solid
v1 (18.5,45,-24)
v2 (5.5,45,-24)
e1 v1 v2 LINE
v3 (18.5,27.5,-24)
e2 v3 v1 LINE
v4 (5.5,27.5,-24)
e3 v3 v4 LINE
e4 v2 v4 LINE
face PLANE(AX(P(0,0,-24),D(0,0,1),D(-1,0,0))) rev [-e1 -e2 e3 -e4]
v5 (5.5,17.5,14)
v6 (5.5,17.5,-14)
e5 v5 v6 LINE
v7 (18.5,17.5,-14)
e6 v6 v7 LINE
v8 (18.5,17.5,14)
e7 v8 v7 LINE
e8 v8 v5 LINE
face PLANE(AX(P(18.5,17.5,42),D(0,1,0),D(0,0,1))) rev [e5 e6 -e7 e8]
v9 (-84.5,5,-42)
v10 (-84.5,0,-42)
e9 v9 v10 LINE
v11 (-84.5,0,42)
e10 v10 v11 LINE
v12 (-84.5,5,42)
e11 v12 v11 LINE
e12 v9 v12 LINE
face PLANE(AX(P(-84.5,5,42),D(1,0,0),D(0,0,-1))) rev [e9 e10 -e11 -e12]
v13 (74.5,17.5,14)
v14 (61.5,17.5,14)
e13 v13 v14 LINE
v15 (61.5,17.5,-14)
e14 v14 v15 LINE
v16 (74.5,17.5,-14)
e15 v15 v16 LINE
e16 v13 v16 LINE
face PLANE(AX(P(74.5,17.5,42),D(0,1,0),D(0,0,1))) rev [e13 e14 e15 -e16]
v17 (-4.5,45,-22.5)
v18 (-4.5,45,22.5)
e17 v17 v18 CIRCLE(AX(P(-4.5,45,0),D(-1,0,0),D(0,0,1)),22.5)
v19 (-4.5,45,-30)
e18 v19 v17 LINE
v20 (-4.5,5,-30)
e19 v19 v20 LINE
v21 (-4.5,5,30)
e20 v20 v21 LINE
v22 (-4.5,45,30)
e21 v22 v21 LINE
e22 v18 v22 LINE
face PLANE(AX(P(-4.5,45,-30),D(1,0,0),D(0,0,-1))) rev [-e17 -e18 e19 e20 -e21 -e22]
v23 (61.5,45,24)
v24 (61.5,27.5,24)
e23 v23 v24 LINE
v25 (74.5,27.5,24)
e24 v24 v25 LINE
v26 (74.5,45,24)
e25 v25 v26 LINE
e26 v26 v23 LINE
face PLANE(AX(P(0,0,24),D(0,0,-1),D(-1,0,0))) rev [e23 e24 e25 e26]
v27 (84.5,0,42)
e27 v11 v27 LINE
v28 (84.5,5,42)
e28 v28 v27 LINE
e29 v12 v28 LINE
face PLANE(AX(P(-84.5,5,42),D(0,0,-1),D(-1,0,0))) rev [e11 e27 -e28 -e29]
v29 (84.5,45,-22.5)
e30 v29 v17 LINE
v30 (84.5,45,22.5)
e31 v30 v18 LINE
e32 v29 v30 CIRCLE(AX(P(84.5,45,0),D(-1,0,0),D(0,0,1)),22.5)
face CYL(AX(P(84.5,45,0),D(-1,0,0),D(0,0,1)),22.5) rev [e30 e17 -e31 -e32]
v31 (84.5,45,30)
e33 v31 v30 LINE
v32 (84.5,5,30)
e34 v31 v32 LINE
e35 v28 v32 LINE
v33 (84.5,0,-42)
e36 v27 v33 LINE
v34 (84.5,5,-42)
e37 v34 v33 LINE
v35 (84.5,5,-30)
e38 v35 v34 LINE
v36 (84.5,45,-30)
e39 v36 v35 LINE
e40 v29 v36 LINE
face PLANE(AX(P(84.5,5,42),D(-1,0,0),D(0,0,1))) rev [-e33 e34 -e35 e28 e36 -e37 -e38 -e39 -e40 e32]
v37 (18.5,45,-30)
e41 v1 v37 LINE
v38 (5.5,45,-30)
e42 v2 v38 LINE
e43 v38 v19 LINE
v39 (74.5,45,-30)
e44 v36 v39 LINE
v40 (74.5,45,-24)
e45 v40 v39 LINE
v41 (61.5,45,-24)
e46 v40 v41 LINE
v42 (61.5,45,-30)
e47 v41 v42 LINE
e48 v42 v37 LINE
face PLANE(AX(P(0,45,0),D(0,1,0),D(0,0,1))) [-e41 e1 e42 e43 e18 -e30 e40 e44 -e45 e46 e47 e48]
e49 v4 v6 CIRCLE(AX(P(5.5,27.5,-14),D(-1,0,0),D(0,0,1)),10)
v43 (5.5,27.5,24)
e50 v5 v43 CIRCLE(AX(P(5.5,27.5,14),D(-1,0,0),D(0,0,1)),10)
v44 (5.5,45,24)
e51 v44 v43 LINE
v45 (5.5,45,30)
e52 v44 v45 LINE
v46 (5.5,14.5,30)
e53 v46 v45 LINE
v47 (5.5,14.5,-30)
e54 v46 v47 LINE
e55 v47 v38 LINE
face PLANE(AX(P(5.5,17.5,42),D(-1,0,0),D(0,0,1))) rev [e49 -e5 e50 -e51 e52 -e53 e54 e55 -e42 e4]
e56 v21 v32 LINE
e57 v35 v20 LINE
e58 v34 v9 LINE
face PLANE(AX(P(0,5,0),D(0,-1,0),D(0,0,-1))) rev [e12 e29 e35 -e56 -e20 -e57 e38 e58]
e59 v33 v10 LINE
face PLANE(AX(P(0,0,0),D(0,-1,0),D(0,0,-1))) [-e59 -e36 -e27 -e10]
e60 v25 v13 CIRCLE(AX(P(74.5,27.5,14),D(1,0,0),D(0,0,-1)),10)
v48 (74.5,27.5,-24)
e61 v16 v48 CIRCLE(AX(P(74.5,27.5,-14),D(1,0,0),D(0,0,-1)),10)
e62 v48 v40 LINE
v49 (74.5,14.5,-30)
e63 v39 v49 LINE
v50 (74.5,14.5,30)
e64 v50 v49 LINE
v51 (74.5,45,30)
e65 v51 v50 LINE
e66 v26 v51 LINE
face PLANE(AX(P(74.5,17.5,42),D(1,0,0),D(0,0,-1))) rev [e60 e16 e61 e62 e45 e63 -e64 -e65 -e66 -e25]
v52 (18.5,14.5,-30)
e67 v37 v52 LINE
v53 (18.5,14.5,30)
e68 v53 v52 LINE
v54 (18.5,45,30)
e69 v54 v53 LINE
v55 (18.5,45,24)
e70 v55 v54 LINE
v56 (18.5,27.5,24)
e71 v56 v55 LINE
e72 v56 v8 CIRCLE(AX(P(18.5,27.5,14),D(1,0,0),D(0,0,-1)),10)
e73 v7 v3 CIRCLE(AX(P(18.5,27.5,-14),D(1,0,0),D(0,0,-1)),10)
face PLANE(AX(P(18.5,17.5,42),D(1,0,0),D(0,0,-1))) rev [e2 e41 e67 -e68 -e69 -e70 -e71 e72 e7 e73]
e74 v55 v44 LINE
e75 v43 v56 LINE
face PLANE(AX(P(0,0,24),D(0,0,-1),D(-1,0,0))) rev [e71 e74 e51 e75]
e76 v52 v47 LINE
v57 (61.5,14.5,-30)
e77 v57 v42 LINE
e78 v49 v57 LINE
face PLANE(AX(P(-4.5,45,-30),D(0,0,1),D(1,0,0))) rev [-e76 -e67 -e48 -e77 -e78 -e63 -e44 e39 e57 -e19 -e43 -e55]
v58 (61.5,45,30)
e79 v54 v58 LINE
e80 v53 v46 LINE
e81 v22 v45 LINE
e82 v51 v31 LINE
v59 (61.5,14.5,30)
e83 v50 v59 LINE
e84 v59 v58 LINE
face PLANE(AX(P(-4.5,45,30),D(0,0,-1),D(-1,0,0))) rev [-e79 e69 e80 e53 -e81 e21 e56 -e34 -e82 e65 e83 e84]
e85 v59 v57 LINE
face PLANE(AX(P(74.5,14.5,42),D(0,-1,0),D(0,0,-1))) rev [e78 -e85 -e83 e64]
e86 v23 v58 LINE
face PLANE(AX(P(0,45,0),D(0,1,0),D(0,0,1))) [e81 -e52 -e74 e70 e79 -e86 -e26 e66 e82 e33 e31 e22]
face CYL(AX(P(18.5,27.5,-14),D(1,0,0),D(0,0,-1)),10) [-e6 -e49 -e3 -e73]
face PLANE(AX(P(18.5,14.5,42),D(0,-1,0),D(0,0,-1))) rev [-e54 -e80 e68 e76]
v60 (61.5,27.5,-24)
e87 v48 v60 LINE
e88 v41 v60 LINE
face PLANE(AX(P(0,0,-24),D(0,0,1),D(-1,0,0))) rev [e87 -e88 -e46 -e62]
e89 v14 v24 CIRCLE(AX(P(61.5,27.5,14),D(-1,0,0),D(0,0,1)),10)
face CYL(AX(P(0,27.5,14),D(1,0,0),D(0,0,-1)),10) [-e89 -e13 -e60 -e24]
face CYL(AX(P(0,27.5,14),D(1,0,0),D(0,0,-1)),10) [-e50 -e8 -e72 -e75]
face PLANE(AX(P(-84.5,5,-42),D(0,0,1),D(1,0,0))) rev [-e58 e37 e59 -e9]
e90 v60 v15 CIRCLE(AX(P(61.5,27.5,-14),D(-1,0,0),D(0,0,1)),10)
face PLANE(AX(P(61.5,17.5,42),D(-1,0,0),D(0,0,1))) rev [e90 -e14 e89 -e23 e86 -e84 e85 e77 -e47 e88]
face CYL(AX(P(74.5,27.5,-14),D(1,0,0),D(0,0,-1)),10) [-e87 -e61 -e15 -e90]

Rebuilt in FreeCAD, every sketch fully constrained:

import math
import FreeCAD as App
import Part
import Sketcher

V = App.Vector
Q = App.Units.Quantity


def edges_at(feature, points):
    """Names of the edges that pass closest to the given points."""
    edges = feature.Shape.Edges
    near = lambda p: min(range(len(edges)), key=lambda i: edges[i].distToShape(Part.Vertex(*p))[0])
    return sorted({f"Edge{near(p) + 1}" for p in points})

doc = App.newDocument("Part")
body = doc.addObject("PartDesign::Body", "Body")

# Sketch on XZ plane
sketch1 = doc.addObject("Sketcher::SketchObject", "Sketch")
body.addObject(sketch1)
sketch1.AttachmentSupport = (doc.XZ_Plane, [""])
sketch1.MapMode = "FlatFace"
sketch1.addGeometry([
    Part.LineSegment(V(-84, -42, 0), V(-84, 42, 0)),
    Part.LineSegment(V(-84, 42, 0), V(84, 42, 0)),
    Part.LineSegment(V(84, 42, 0), V(84, -42, 0)),
    Part.LineSegment(V(84, -42, 0), V(-84, -42, 0)),
], False)
sketch1.addConstraint([
    Sketcher.Constraint("Coincident", 0, 2, 1, 1),
    Sketcher.Constraint("Coincident", 1, 2, 2, 1),
    Sketcher.Constraint("Coincident", 2, 2, 3, 1),
    Sketcher.Constraint("Coincident", 3, 2, 0, 1),
    Sketcher.Constraint("Vertical", 0),
    Sketcher.Constraint("Horizontal", 1),
    Sketcher.Constraint("Vertical", 2),
    Sketcher.Constraint("Horizontal", 3),
    Sketcher.Constraint("Symmetric", 0, 2, 2, 2, -1, 1),
    Sketcher.Constraint("DistanceX", 1, 1, 1, 2, Q("169 mm")),
    Sketcher.Constraint("DistanceY", 0, 1, 0, 2, Q("84 mm")),
])
pad1 = doc.addObject("PartDesign::Pad", "Pad")
body.addObject(pad1)
pad1.Profile = sketch1
pad1.Length = 5
pad1.Reversed = True

# Sketch on XZ plane
sketch2 = doc.addObject("Sketcher::SketchObject", "Sketch001")
body.addObject(sketch2)
sketch2.AttachmentSupport = (doc.XZ_Plane, [""])
sketch2.MapMode = "FlatFace"
sketch2.AttachmentOffset = App.Placement(V(0, 0, -5), App.Rotation())
sketch2.addGeometry([
    Part.LineSegment(V(-4, -30, 0), V(-4, 30, 0)),
    Part.LineSegment(V(-4, 30, 0), V(84, 30, 0)),
    Part.LineSegment(V(84, 30, 0), V(84, -30, 0)),
    Part.LineSegment(V(84, -30, 0), V(-4, -30, 0)),
], False)
sketch2.addConstraint([
    Sketcher.Constraint("Coincident", 0, 2, 1, 1),
    Sketcher.Constraint("Coincident", 1, 2, 2, 1),
    Sketcher.Constraint("Coincident", 2, 2, 3, 1),
    Sketcher.Constraint("Coincident", 3, 2, 0, 1),
    Sketcher.Constraint("Vertical", 0),
    Sketcher.Constraint("Horizontal", 1),
    Sketcher.Constraint("Vertical", 2),
    Sketcher.Constraint("Horizontal", 3),
    Sketcher.Constraint("DistanceX", 1, 1, 1, 2, Q("89 mm")),
    Sketcher.Constraint("DistanceY", 0, 1, 0, 2, Q("60 mm")),
    Sketcher.Constraint("DistanceY", -1, 1, 0, 2, Q("30 mm")),
    Sketcher.Constraint("DistanceX", 0, 2, -1, 1, Q("4.5 mm")),
])
pad2 = doc.addObject("PartDesign::Pad", "Pad001")
body.addObject(pad2)
pad2.Profile = sketch2
pad2.Length = 40
pad2.Reversed = True

# Sketch on YZ plane
sketch3 = doc.addObject("Sketcher::SketchObject", "Sketch002")
body.addObject(sketch3)
sketch3.AttachmentSupport = (doc.YZ_Plane, [""])
sketch3.MapMode = "FlatFace"
sketch3.AttachmentOffset = App.Placement(V(0, 0, -4.5), App.Rotation())
sketch3.addGeometry([
    Part.LineSegment(V(45, 22, 0), V(45, -22, 0)),
    Part.ArcOfCircle(Part.Circle(V(45, 0, 0), V(0, 0, 1), 22), math.radians(90), math.radians(270)),
], False)
sketch3.addConstraint([
    Sketcher.Constraint("Coincident", 0, 1, 1, 1),
    Sketcher.Constraint("Coincident", 1, 2, 0, 2),
    Sketcher.Constraint("Vertical", 0),
    Sketcher.Constraint("PointOnObject", 1, 3, -1),
    Sketcher.Constraint("Vertical", 1, 3, 0, 1),
    Sketcher.Constraint("Radius", 1, Q("22.5 mm")),
    Sketcher.Constraint("DistanceX", -1, 1, 1, 3, Q("45 mm")),
])
pocket1 = doc.addObject("PartDesign::Pocket", "Pocket")
body.addObject(pocket1)
pocket1.Profile = sketch3
pocket1.Type = "ThroughAll"
pocket1.Reversed = True

# Sketch on XY plane
sketch4 = doc.addObject("Sketcher::SketchObject", "Sketch003")
body.addObject(sketch4)
sketch4.AttachmentSupport = (doc.XY_Plane, [""])
sketch4.MapMode = "FlatFace"
sketch4.AttachmentOffset = App.Placement(V(0, 0, -30), App.Rotation())
sketch4.addGeometry([
    Part.LineSegment(V(18.5, 17.5, 0), V(18.5, 14.5, 0)),  # 0
    Part.LineSegment(V(18.5, 14.5, 0), V(5.5, 14.5, 0)),  # 1
    Part.LineSegment(V(5.5, 14.5, 0), V(5.5, 17.5, 0)),  # 2
    Part.LineSegment(V(5.5, 17.5, 0), V(18.5, 17.5, 0)),  # 3
    Part.LineSegment(V(74.5, 17.5, 0), V(74.5, 14.5, 0)),  # 4
    Part.LineSegment(V(74.5, 14.5, 0), V(61.5, 14.5, 0)),  # 5
    Part.LineSegment(V(61.5, 14.5, 0), V(61.5, 17.5, 0)),  # 6
    Part.LineSegment(V(61.5, 17.5, 0), V(74.5, 17.5, 0)),  # 7
], False)
sketch4.addConstraint([
    Sketcher.Constraint("Coincident", 0, 2, 1, 1),
    Sketcher.Constraint("Coincident", 1, 2, 2, 1),
    Sketcher.Constraint("Coincident", 2, 2, 3, 1),
    Sketcher.Constraint("Coincident", 3, 2, 0, 1),
    Sketcher.Constraint("Coincident", 4, 2, 5, 1),
    Sketcher.Constraint("Coincident", 5, 2, 6, 1),
    Sketcher.Constraint("Coincident", 6, 2, 7, 1),
    Sketcher.Constraint("Coincident", 7, 2, 4, 1),
    Sketcher.Constraint("Vertical", 0),
    Sketcher.Constraint("Horizontal", 1),
    Sketcher.Constraint("Vertical", 2),
    Sketcher.Constraint("Horizontal", 3),
    Sketcher.Constraint("Vertical", 4),
    Sketcher.Constraint("Horizontal", 5),
    Sketcher.Constraint("Vertical", 6),
    Sketcher.Constraint("Horizontal", 7),
    Sketcher.Constraint("Horizontal", 1, 2, 4, 2),
    Sketcher.Constraint("Horizontal", 3, 2, 6, 2),
    Sketcher.Constraint("Equal", 3, 5),
    Sketcher.Constraint("DistanceX", 1, 2, 1, 1, Q("13 mm")),
    Sketcher.Constraint("DistanceY", 0, 2, 0, 1, Q("3 mm")),
    Sketcher.Constraint("DistanceX", 0, 2, 4, 2, Q("56 mm")),
    Sketcher.Constraint("DistanceX", -1, 1, 0, 2, Q("18.5 mm")),
    Sketcher.Constraint("DistanceY", -1, 1, 0, 2, Q("14.5 mm")),
])
pocket2 = doc.addObject("PartDesign::Pocket", "Pocket001")
body.addObject(pocket2)
pocket2.Profile = sketch4
pocket2.Type = "ThroughAll"
pocket2.Reversed = True

# Sketch on XY plane
sketch5 = doc.addObject("Sketcher::SketchObject", "Sketch004")
body.addObject(sketch5)
sketch5.AttachmentSupport = (doc.XY_Plane, [""])
sketch5.MapMode = "FlatFace"
sketch5.AttachmentOffset = App.Placement(V(0, 0, 30), App.Rotation())
sketch5.addGeometry([
    Part.LineSegment(V(6, 45, 0), V(6, 18, 0)),  # 0
    Part.LineSegment(V(6, 18, 0), V(18, 18, 0)),  # 1
    Part.LineSegment(V(18, 18, 0), V(18, 45, 0)),  # 2
    Part.LineSegment(V(18, 45, 0), V(6, 45, 0)),  # 3
    Part.LineSegment(V(62, 45, 0), V(62, 18, 0)),  # 4
    Part.LineSegment(V(62, 18, 0), V(74, 18, 0)),  # 5
    Part.LineSegment(V(74, 18, 0), V(74, 45, 0)),  # 6
    Part.LineSegment(V(74, 45, 0), V(62, 45, 0)),  # 7
], False)
sketch5.addConstraint([
    Sketcher.Constraint("Coincident", 0, 2, 1, 1),
    Sketcher.Constraint("Coincident", 1, 2, 2, 1),
    Sketcher.Constraint("Coincident", 2, 2, 3, 1),
    Sketcher.Constraint("Coincident", 3, 2, 0, 1),
    Sketcher.Constraint("Coincident", 4, 2, 5, 1),
    Sketcher.Constraint("Coincident", 5, 2, 6, 1),
    Sketcher.Constraint("Coincident", 6, 2, 7, 1),
    Sketcher.Constraint("Coincident", 7, 2, 4, 1),
    Sketcher.Constraint("Vertical", 0),
    Sketcher.Constraint("Horizontal", 1),
    Sketcher.Constraint("Vertical", 2),
    Sketcher.Constraint("Horizontal", 3),
    Sketcher.Constraint("Vertical", 4),
    Sketcher.Constraint("Horizontal", 5),
    Sketcher.Constraint("Vertical", 6),
    Sketcher.Constraint("Horizontal", 7),
    Sketcher.Constraint("Horizontal", 1, 2, 4, 2),
    Sketcher.Constraint("Horizontal", 3, 2, 6, 2),
    Sketcher.Constraint("Equal", 3, 5),
    Sketcher.Constraint("DistanceX", 1, 1, 1, 2, Q("13 mm")),
    Sketcher.Constraint("DistanceY", 0, 2, 0, 1, Q("27.5 mm")),
    Sketcher.Constraint("DistanceY", -1, 1, 2, 2, Q("45 mm")),
    Sketcher.Constraint("DistanceX", 1, 2, 4, 2, Q("43 mm")),
    Sketcher.Constraint("DistanceX", -1, 1, 0, 2, Q("5.5 mm")),
])
pocket3 = doc.addObject("PartDesign::Pocket", "Pocket002")
body.addObject(pocket3)
pocket3.Profile = sketch5
pocket3.Length = 6
doc.recompute()

fillet = doc.addObject("PartDesign::Fillet", "Fillet")
body.addObject(fillet)
fillet.Base = (pocket3, edges_at(pocket3, [(12, 17.5, 24), (68, 17.5, 24)]))
fillet.Radius = 10
doc.recompute()

mirrored = doc.addObject("PartDesign::Mirrored", "Mirrored")
body.addObject(mirrored)
mirrored.Originals = [pocket3]
mirrored.MirrorPlane = (doc.XY_Plane, [""])
body.Tip = mirrored
doc.recompute()

fillet2 = doc.addObject("PartDesign::Fillet", "Fillet001")
body.addObject(fillet2)
fillet2.Base = (mirrored, edges_at(mirrored, [(12, 17.5, -24), (68, 17.5, -24)]))
fillet2.Radius = 10

doc.recompute()
